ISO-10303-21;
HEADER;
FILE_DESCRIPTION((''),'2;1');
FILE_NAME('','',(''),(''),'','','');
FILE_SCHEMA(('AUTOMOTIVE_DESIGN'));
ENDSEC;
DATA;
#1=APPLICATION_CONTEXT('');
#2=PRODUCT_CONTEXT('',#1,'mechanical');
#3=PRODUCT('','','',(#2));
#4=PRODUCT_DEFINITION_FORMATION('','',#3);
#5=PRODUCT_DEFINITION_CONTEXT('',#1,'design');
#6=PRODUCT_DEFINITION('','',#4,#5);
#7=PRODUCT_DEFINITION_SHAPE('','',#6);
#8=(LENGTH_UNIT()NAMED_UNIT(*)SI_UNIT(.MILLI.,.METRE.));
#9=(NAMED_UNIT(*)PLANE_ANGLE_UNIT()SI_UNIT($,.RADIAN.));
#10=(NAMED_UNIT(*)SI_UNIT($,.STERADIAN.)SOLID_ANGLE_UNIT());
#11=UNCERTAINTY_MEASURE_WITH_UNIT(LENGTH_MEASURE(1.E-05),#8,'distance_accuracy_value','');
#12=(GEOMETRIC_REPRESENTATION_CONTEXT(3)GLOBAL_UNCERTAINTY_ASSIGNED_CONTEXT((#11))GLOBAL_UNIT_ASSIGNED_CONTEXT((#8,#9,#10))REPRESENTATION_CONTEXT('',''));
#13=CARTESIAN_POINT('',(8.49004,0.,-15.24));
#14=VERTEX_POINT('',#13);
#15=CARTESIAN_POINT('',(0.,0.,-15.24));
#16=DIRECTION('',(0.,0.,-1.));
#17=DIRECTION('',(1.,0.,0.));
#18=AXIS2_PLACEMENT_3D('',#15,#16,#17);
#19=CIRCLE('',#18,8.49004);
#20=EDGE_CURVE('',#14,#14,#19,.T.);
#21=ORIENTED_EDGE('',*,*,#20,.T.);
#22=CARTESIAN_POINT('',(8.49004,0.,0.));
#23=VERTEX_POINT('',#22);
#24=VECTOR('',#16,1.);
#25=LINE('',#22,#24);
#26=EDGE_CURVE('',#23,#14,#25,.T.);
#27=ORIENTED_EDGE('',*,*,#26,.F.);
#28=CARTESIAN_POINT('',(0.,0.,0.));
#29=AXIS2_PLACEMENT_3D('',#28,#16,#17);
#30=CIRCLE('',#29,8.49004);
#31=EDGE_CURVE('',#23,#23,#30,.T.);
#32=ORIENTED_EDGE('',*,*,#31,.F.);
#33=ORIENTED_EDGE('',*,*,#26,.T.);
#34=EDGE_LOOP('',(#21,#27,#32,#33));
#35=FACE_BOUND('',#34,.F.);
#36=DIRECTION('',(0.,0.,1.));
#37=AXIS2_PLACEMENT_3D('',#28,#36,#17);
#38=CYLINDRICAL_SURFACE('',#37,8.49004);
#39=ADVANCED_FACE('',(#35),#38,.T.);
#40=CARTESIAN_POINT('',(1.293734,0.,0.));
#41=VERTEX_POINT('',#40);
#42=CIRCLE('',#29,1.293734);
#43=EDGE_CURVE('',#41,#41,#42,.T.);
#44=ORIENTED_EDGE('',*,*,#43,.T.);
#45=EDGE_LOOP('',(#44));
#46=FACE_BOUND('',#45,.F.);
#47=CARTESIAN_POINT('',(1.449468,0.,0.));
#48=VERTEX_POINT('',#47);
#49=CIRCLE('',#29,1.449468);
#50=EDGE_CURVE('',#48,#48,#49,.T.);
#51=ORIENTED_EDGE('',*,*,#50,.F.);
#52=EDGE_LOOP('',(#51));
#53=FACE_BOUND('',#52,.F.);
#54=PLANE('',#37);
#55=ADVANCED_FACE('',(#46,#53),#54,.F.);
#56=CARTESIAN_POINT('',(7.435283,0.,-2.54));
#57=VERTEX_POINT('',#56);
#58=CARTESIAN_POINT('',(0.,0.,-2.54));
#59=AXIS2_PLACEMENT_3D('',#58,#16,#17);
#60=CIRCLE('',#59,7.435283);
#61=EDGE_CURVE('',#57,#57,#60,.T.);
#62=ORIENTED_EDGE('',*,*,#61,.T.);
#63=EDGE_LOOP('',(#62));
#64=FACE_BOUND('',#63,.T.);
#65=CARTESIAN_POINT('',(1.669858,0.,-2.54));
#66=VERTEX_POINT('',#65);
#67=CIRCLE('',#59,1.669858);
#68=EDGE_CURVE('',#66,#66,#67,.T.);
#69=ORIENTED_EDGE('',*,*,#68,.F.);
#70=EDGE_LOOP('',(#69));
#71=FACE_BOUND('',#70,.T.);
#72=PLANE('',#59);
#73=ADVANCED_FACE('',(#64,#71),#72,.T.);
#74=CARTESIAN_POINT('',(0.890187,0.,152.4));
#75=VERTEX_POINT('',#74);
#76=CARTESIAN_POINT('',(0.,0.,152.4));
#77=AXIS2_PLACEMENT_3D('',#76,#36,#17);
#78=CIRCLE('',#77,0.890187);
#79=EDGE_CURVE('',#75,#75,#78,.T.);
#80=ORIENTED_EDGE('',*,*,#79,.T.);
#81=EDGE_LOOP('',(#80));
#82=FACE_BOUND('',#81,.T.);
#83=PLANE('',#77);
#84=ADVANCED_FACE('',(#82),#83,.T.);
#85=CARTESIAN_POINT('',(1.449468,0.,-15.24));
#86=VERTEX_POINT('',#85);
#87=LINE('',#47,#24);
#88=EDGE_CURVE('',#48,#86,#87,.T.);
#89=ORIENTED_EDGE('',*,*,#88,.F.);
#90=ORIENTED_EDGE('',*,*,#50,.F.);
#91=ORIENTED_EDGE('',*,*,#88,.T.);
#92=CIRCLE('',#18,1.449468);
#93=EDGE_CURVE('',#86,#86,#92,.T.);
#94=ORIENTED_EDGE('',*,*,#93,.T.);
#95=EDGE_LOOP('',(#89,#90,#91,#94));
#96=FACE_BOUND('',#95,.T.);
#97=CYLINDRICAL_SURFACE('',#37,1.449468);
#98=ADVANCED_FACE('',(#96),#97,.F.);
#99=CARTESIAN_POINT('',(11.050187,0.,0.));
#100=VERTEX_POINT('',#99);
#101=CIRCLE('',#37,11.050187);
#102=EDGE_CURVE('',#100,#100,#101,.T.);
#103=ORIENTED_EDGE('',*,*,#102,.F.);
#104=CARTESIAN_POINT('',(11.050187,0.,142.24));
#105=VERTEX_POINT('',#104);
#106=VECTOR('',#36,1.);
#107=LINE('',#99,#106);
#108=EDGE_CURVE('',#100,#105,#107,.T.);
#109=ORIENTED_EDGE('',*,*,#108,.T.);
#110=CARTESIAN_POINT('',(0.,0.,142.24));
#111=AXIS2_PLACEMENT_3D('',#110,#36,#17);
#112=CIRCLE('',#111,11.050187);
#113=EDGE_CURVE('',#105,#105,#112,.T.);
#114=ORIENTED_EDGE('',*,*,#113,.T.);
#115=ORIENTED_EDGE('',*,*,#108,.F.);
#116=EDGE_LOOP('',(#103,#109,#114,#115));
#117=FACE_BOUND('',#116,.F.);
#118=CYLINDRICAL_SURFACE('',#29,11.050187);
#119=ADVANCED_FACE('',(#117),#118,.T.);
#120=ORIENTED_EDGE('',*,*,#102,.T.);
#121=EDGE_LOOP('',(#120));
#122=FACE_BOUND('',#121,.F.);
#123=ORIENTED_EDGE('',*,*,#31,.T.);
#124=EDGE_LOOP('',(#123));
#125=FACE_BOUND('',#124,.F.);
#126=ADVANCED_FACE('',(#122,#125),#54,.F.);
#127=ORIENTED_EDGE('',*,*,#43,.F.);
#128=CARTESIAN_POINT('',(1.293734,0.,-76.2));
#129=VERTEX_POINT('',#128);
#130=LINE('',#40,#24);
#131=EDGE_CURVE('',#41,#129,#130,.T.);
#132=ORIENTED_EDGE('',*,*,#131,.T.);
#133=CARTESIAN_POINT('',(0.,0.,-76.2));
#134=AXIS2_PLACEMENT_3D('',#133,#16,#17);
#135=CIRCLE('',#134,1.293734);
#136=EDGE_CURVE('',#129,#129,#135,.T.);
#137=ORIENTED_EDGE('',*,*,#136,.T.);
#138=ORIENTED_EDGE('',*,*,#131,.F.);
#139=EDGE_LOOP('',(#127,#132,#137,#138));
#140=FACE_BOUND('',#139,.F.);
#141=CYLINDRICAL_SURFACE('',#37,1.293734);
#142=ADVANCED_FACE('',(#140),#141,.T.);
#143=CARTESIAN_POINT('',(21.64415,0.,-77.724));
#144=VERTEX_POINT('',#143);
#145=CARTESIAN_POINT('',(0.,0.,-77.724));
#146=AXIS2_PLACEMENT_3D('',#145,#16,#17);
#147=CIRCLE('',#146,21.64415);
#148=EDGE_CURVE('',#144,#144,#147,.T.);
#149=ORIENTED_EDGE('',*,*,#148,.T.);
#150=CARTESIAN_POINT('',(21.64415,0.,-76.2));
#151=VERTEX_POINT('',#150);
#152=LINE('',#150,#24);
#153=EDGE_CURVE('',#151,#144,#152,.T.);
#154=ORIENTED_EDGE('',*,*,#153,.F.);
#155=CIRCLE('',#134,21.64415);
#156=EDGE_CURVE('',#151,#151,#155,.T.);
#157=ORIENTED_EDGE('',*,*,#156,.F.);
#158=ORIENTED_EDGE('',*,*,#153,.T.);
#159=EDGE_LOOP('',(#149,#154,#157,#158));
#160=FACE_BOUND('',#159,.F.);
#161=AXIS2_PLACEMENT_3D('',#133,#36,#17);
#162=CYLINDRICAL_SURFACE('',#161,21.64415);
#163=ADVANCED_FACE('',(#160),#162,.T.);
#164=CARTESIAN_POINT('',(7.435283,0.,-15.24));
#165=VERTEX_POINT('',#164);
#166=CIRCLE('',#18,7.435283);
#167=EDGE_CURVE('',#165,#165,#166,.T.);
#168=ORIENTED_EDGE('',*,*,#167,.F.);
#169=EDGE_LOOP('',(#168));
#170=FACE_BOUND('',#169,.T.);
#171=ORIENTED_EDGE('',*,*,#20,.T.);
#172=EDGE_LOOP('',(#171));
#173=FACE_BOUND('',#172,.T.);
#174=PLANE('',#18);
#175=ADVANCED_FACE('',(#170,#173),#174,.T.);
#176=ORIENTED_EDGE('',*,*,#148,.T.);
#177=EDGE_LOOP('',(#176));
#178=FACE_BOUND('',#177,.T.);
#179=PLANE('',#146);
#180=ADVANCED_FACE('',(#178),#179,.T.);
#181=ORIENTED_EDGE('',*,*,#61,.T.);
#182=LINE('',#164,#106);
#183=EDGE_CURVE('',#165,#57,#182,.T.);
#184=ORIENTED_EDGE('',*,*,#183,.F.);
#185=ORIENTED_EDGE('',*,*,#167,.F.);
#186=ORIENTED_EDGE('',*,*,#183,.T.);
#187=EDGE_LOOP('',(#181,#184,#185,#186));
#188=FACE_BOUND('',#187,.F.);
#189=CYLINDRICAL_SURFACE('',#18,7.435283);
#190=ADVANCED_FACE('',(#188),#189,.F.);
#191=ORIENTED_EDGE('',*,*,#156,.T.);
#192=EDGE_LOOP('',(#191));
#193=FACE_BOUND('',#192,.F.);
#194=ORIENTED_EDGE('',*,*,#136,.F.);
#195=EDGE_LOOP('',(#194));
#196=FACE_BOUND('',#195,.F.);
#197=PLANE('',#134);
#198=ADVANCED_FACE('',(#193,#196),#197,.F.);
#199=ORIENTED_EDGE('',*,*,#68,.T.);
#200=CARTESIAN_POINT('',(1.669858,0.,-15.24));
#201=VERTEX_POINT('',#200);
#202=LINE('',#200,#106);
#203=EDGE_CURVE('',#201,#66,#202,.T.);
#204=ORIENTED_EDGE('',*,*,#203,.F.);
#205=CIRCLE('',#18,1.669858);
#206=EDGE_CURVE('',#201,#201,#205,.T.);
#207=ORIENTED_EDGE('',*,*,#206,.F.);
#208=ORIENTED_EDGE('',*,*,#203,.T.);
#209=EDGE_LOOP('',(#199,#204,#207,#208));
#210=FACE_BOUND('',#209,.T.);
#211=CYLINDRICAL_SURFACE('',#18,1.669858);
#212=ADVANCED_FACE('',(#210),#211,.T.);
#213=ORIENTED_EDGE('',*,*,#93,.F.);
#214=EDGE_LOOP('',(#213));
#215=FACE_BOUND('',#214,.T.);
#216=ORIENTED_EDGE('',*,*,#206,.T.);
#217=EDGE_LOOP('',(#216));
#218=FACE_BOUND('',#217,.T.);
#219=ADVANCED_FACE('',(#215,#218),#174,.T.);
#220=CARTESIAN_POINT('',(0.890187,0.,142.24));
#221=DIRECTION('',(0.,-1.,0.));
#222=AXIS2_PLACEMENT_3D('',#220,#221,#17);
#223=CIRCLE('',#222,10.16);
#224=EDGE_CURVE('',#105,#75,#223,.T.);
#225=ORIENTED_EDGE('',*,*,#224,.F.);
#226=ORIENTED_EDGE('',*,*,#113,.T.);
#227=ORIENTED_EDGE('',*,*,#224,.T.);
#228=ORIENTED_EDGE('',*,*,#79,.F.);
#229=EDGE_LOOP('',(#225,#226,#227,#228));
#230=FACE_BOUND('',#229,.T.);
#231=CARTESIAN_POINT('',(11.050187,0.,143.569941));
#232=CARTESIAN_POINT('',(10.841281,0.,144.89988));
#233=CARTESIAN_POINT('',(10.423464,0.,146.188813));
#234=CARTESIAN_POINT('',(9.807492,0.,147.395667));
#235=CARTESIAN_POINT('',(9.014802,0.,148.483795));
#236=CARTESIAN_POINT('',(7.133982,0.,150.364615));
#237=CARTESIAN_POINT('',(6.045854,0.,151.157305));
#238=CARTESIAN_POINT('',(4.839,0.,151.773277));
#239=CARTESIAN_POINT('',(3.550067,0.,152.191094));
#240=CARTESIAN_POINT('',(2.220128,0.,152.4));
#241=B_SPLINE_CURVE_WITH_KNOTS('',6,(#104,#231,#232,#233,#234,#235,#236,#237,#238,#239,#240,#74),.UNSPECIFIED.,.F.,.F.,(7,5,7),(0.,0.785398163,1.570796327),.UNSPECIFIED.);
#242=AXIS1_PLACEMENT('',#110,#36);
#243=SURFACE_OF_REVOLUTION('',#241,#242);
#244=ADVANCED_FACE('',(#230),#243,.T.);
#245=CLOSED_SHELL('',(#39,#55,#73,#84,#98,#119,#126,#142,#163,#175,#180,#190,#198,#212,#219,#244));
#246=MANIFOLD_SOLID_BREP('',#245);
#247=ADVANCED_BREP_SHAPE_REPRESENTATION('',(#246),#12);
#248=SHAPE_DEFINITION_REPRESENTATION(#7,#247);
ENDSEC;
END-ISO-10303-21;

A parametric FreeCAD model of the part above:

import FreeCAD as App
import Part
import Sketcher
from FreeCAD import Vector
Q = App.Units.Quantity


def edges_at(feature, points):
    """Names of the edges that pass closest to the given points."""
    edges = feature.Shape.Edges
    near = lambda p: min(range(len(edges)), key=lambda i: edges[i].distToShape(Part.Vertex(*p))[0])
    return sorted({f"Edge{near(p) + 1}" for p in points})

doc = App.newDocument("Part")
body = doc.addObject("PartDesign::Body", "Body")

# Sketch on XY plane
sketch1 = body.newObject("Sketcher::SketchObject", "Sketch")
sketch1.AttachmentSupport = (doc.getObject("XY_Plane"), [""])
sketch1.MapMode = "FlatFace"
sketch1.addGeometry(Part.Circle(Vector(0, 0, 0), Vector(0, 0, 1), 11.050187), False)
sketch1.addConstraint([
    Sketcher.Constraint("Coincident", 0, 3, -1, 1),
    Sketcher.Constraint("Diameter", 0, Q("22.100374 mm")),
])
pad1 = body.newObject("PartDesign::Pad", "Pad")
pad1.Profile = sketch1
pad1.Length = Q("6 in")
doc.recompute()

fillet = body.newObject("PartDesign::Fillet", "Fillet")
fillet.Base = (pad1, edges_at(pad1, [(-11.05, 0, 152.4)]))
fillet.Radius = Q("0.4 in")

# Sketch on XY plane
sketch2 = body.newObject("Sketcher::SketchObject", "Sketch001")
sketch2.AttachmentSupport = (doc.getObject("XY_Plane"), [""])
sketch2.MapMode = "FlatFace"
sketch2.addGeometry(Part.Circle(Vector(0, 0, 0), Vector(0, 0, 1), 1.293734), False)
sketch2.addConstraint([
    Sketcher.Constraint("Coincident", 0, 3, -1, 1),
    Sketcher.Constraint("Diameter", 0, Q("2.587468 mm")),
])
pad2 = body.newObject("PartDesign::Pad", "Pad001")
pad2.Profile = sketch2
pad2.Length = Q("3 in")
pad2.Reversed = True

# Sketch on XY plane
sketch3 = body.newObject("Sketcher::SketchObject", "Sketch002")
sketch3.AttachmentSupport = (doc.getObject("XY_Plane"), [""])
sketch3.MapMode = "FlatFace"
sketch3.addGeometry([
    Part.Circle(Vector(0, 0, 0), Vector(0, 0, 1), 8.49004),
    Part.Circle(Vector(0, 0, 0), Vector(0, 0, 1), 1.449468),
], False)
sketch3.addConstraint([
    Sketcher.Constraint("Coincident", 0, 3, -1, 1),
    Sketcher.Constraint("Coincident", 1, 3, -1, 1),
    Sketcher.Constraint("Diameter", 0, Q("16.98008 mm")),
    Sketcher.Constraint("Diameter", 1, Q("2.898936 mm")),
])
pad3 = body.newObject("PartDesign::Pad", "Pad002")
pad3.Profile = sketch3
pad3.Length = Q("0.6 in")
pad3.Reversed = True

# Sketch on XY plane
sketch4 = body.newObject("Sketcher::SketchObject", "Sketch003")
sketch4.AttachmentSupport = (doc.getObject("XY_Plane"), [""])
sketch4.MapMode = "FlatFace"
sketch4.AttachmentOffset = App.Placement(Vector(0, 0, -0.6 * 25.4), App.Rotation())
sketch4.addGeometry([
    Part.Circle(Vector(0, 0, 0), Vector(0, 0, 1), 7.435283),
    Part.Circle(Vector(0, 0, 0), Vector(0, 0, 1), 1.669858),
], False)
sketch4.addConstraint([
    Sketcher.Constraint("Coincident", 0, 3, -1, 1),
    Sketcher.Constraint("Coincident", 1, 3, -1, 1),
    Sketcher.Constraint("Diameter", 0, Q("14.870566 mm")),
    Sketcher.Constraint("Diameter", 1, Q("3.339716 mm")),
])
pocket1 = body.newObject("PartDesign::Pocket", "Pocket")
pocket1.Profile = sketch4
pocket1.Length = Q("0.5 in")
pocket1.Reversed = True

# Sketch on XY plane
sketch5 = body.newObject("Sketcher::SketchObject", "Sketch004")
sketch5.AttachmentSupport = (doc.getObject("XY_Plane"), [""])
sketch5.MapMode = "FlatFace"
sketch5.AttachmentOffset = App.Placement(Vector(0, 0, -3 * 25.4), App.Rotation())
sketch5.addGeometry(Part.Circle(Vector(0, 0, 0), Vector(0, 0, 1), 21.64415), False)
sketch5.addConstraint([
    Sketcher.Constraint("Coincident", 0, 3, -1, 1),
    Sketcher.Constraint("Diameter", 0, Q("43.2883 mm")),
])
pad4 = body.newObject("PartDesign::Pad", "Pad003")
pad4.Profile = sketch5
pad4.Length = Q("0.06 in")
pad4.Reversed = True

doc.recompute()
